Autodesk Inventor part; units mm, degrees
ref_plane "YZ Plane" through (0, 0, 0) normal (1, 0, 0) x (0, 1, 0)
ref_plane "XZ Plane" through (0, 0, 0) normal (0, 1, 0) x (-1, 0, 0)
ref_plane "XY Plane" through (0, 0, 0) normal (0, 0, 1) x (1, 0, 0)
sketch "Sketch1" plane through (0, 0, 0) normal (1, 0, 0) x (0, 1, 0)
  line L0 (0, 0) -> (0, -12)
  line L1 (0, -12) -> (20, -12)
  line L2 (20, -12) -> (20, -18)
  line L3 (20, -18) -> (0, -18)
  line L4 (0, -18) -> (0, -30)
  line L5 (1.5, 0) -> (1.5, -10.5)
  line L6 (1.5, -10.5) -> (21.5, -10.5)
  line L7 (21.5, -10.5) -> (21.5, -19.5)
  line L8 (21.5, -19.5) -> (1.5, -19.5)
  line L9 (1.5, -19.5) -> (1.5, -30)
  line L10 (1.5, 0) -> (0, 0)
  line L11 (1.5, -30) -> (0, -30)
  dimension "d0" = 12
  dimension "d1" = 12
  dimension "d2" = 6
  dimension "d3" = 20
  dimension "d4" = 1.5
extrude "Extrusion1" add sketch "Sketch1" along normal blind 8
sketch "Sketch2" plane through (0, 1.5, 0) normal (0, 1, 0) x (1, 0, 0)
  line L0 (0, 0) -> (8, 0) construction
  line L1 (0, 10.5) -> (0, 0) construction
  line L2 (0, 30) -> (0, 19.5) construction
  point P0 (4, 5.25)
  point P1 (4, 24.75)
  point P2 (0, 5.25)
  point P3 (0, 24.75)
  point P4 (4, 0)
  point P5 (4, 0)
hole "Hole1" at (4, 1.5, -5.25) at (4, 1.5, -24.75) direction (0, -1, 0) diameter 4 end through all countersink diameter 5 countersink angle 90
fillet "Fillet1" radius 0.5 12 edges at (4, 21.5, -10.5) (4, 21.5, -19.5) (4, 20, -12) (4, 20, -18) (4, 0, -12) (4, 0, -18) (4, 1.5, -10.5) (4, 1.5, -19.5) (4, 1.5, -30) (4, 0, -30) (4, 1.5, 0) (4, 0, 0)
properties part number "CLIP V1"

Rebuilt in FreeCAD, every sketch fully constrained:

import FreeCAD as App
import Part
import Sketcher
from FreeCAD import Vector


def edges_at(feature, points):
    """Names of the edges that pass closest to the given points."""
    edges = feature.Shape.Edges
    near = lambda p: min(range(len(edges)), key=lambda i: edges[i].distToShape(Part.Vertex(*p))[0])
    return sorted({f"Edge{near(p) + 1}" for p in points})


def add_polygon(sketch, points):
    """Adds a closed chain of lines whose ends are joined by coincident constraints."""
    first, n = sketch.GeometryCount, len(points)
    for a, b in zip(points, points[1:] + points[:1]):
        sketch.addGeometry(Part.LineSegment(App.Vector(*a, 0), App.Vector(*b, 0)), False)
    for i in range(n):
        sketch.addConstraint(Sketcher.Constraint("Coincident", first + i, 2, first + (i + 1) % n, 1))

doc = App.newDocument("Part")
params = doc.addObject("Spreadsheet::Sheet", "Params")
for row, (alias, value) in enumerate([
    ("sketch1_width", "20 mm"),
    ("sketch1_height", "12 mm"),
    ("sketch1_height2", "6 mm"),
    ("sketch1_width2", "1.5 mm"),
    ("pad1_length", "8 mm"),
    ("sketch2_diameter", "4 mm"),
    ("hole_diameter", "4 mm"),
    ("hole_csink_diameter", "5 mm"),
    ("fillet_radius", "0.5 mm"),
], start=1):
    params.set(f"A{row}", alias)
    params.set(f"B{row}", "=" + value)
    params.setAlias(f"B{row}", alias)

body = doc.addObject("PartDesign::Body", "Body")

sketch1 = doc.addObject("Sketcher::SketchObject", "Sketch")
body.addObject(sketch1)
sketch1.AttachmentSupport = (doc.YZ_Plane, [""])
sketch1.MapMode = "FlatFace"
add_polygon(sketch1, [(1.5, 0), (0, 0), (0, -12), (20, -12), (20, -18), (0, -18), (0, -30), (1.5, -30), (1.5, -19.5), (21.5, -19.5), (21.5, -10.5), (1.5, -10.5)])
sketch1.addConstraint([
    Sketcher.Constraint("Horizontal", 0),
    Sketcher.Constraint("Vertical", 1),
    Sketcher.Constraint("Horizontal", 2),
    Sketcher.Constraint("Vertical", 3),
    Sketcher.Constraint("Horizontal", 4),
    Sketcher.Constraint("Vertical", 5),
    Sketcher.Constraint("Horizontal", 6),
    Sketcher.Constraint("Vertical", 7),
    Sketcher.Constraint("Horizontal", 8),
    Sketcher.Constraint("Vertical", 9),
    Sketcher.Constraint("Horizontal", 10),
    Sketcher.Constraint("Vertical", 11),
    Sketcher.Constraint("Coincident", 0, 2, -1, 1),
    Sketcher.Constraint("PointOnObject", 4, 2, -2),
    Sketcher.Constraint("Vertical", 7, 2, 10, 2),
    Sketcher.Constraint("Equal", 4, 8),
    Sketcher.Constraint("Equal", 1, 5),
    Sketcher.Constraint("Equal", 7, 11),
    Sketcher.Constraint("DistanceX", 2, 1, 2, 2, 20.0),
    Sketcher.Constraint("DistanceY", 1, 2, 1, 1, 12.0),
    Sketcher.Constraint("DistanceY", 3, 2, 3, 1, 6.0),
    Sketcher.Constraint("DistanceX", 0, 2, 0, 1, 1.5),
    Sketcher.Constraint("DistanceY", 7, 2, 4, 2, 1.5),
])
sketch1.setExpression("Constraints[30]", "Params.sketch1_width")
sketch1.setExpression("Constraints[31]", "Params.sketch1_height")
sketch1.setExpression("Constraints[32]", "Params.sketch1_height2")
sketch1.setExpression("Constraints[33]", "Params.sketch1_width2")
pad1 = doc.addObject("PartDesign::Pad", "Pad")
body.addObject(pad1)
pad1.Profile = sketch1
pad1.setExpression("Length", "Params.pad1_length")

sketch2 = doc.addObject("Sketcher::SketchObject", "Sketch001")
body.addObject(sketch2)
sketch2.AttachmentSupport = (doc.XZ_Plane, [""])
sketch2.MapMode = "FlatFace"
sketch2.AttachmentOffset = App.Placement(Vector(0, 0, -1.5), App.Rotation())
sketch2.addGeometry([
    Part.Circle(Vector(4, -5.2, 0), Vector(0, 0, 1), 2),
    Part.Circle(Vector(4, -24.8, 0), Vector(0, 0, 1), 2),
], False)
sketch2.addConstraint([
    Sketcher.Constraint("Equal", 0, 1),
    Sketcher.Constraint("Vertical", 0, 3, 1, 3),
    Sketcher.Constraint("Diameter", 0, 4.0),
    Sketcher.Constraint("DistanceX", -1, 1, 0, 3, 4.0),
    Sketcher.Constraint("DistanceY", 1, 3, 0, 3, 19.5),
    Sketcher.Constraint("DistanceY", 0, 3, -1, 1, 5.25),
])
sketch2.setExpression("Constraints[2]", "Params.sketch2_diameter")
doc.recompute()
hole = doc.addObject("PartDesign::Hole", "Hole")
body.addObject(hole)
hole.Profile = sketch2
hole.ThreadType = "None"
hole.setExpression("Diameter", "Params.hole_diameter")
hole.DepthType = "ThroughAll"
hole.HoleCutType = "Countersink"
hole.setExpression("HoleCutDiameter", "Params.hole_csink_diameter")
hole.HoleCutCountersinkAngle = 90
hole.Reversed = True
doc.recompute()

fillet = doc.addObject("PartDesign::Fillet", "Fillet")
body.addObject(fillet)
fillet.Base = (hole, edges_at(hole, [
    (4, 21.5, -10.5),
    (4, 21.5, -19.5),
    (4, 20, -12),
    (4, 20, -18),
    (4, 0, -12),
    (4, 0, -18),
    (4, 1.5, -10.5),
    (4, 1.5, -19.5),
    (4, 1.5, -30),
    (4, 0, -30),
    (4, 1.5, 0),
    (4, 0, 0),
]))
fillet.setExpression("Radius", "Params.fillet_radius")

doc.recompute()
